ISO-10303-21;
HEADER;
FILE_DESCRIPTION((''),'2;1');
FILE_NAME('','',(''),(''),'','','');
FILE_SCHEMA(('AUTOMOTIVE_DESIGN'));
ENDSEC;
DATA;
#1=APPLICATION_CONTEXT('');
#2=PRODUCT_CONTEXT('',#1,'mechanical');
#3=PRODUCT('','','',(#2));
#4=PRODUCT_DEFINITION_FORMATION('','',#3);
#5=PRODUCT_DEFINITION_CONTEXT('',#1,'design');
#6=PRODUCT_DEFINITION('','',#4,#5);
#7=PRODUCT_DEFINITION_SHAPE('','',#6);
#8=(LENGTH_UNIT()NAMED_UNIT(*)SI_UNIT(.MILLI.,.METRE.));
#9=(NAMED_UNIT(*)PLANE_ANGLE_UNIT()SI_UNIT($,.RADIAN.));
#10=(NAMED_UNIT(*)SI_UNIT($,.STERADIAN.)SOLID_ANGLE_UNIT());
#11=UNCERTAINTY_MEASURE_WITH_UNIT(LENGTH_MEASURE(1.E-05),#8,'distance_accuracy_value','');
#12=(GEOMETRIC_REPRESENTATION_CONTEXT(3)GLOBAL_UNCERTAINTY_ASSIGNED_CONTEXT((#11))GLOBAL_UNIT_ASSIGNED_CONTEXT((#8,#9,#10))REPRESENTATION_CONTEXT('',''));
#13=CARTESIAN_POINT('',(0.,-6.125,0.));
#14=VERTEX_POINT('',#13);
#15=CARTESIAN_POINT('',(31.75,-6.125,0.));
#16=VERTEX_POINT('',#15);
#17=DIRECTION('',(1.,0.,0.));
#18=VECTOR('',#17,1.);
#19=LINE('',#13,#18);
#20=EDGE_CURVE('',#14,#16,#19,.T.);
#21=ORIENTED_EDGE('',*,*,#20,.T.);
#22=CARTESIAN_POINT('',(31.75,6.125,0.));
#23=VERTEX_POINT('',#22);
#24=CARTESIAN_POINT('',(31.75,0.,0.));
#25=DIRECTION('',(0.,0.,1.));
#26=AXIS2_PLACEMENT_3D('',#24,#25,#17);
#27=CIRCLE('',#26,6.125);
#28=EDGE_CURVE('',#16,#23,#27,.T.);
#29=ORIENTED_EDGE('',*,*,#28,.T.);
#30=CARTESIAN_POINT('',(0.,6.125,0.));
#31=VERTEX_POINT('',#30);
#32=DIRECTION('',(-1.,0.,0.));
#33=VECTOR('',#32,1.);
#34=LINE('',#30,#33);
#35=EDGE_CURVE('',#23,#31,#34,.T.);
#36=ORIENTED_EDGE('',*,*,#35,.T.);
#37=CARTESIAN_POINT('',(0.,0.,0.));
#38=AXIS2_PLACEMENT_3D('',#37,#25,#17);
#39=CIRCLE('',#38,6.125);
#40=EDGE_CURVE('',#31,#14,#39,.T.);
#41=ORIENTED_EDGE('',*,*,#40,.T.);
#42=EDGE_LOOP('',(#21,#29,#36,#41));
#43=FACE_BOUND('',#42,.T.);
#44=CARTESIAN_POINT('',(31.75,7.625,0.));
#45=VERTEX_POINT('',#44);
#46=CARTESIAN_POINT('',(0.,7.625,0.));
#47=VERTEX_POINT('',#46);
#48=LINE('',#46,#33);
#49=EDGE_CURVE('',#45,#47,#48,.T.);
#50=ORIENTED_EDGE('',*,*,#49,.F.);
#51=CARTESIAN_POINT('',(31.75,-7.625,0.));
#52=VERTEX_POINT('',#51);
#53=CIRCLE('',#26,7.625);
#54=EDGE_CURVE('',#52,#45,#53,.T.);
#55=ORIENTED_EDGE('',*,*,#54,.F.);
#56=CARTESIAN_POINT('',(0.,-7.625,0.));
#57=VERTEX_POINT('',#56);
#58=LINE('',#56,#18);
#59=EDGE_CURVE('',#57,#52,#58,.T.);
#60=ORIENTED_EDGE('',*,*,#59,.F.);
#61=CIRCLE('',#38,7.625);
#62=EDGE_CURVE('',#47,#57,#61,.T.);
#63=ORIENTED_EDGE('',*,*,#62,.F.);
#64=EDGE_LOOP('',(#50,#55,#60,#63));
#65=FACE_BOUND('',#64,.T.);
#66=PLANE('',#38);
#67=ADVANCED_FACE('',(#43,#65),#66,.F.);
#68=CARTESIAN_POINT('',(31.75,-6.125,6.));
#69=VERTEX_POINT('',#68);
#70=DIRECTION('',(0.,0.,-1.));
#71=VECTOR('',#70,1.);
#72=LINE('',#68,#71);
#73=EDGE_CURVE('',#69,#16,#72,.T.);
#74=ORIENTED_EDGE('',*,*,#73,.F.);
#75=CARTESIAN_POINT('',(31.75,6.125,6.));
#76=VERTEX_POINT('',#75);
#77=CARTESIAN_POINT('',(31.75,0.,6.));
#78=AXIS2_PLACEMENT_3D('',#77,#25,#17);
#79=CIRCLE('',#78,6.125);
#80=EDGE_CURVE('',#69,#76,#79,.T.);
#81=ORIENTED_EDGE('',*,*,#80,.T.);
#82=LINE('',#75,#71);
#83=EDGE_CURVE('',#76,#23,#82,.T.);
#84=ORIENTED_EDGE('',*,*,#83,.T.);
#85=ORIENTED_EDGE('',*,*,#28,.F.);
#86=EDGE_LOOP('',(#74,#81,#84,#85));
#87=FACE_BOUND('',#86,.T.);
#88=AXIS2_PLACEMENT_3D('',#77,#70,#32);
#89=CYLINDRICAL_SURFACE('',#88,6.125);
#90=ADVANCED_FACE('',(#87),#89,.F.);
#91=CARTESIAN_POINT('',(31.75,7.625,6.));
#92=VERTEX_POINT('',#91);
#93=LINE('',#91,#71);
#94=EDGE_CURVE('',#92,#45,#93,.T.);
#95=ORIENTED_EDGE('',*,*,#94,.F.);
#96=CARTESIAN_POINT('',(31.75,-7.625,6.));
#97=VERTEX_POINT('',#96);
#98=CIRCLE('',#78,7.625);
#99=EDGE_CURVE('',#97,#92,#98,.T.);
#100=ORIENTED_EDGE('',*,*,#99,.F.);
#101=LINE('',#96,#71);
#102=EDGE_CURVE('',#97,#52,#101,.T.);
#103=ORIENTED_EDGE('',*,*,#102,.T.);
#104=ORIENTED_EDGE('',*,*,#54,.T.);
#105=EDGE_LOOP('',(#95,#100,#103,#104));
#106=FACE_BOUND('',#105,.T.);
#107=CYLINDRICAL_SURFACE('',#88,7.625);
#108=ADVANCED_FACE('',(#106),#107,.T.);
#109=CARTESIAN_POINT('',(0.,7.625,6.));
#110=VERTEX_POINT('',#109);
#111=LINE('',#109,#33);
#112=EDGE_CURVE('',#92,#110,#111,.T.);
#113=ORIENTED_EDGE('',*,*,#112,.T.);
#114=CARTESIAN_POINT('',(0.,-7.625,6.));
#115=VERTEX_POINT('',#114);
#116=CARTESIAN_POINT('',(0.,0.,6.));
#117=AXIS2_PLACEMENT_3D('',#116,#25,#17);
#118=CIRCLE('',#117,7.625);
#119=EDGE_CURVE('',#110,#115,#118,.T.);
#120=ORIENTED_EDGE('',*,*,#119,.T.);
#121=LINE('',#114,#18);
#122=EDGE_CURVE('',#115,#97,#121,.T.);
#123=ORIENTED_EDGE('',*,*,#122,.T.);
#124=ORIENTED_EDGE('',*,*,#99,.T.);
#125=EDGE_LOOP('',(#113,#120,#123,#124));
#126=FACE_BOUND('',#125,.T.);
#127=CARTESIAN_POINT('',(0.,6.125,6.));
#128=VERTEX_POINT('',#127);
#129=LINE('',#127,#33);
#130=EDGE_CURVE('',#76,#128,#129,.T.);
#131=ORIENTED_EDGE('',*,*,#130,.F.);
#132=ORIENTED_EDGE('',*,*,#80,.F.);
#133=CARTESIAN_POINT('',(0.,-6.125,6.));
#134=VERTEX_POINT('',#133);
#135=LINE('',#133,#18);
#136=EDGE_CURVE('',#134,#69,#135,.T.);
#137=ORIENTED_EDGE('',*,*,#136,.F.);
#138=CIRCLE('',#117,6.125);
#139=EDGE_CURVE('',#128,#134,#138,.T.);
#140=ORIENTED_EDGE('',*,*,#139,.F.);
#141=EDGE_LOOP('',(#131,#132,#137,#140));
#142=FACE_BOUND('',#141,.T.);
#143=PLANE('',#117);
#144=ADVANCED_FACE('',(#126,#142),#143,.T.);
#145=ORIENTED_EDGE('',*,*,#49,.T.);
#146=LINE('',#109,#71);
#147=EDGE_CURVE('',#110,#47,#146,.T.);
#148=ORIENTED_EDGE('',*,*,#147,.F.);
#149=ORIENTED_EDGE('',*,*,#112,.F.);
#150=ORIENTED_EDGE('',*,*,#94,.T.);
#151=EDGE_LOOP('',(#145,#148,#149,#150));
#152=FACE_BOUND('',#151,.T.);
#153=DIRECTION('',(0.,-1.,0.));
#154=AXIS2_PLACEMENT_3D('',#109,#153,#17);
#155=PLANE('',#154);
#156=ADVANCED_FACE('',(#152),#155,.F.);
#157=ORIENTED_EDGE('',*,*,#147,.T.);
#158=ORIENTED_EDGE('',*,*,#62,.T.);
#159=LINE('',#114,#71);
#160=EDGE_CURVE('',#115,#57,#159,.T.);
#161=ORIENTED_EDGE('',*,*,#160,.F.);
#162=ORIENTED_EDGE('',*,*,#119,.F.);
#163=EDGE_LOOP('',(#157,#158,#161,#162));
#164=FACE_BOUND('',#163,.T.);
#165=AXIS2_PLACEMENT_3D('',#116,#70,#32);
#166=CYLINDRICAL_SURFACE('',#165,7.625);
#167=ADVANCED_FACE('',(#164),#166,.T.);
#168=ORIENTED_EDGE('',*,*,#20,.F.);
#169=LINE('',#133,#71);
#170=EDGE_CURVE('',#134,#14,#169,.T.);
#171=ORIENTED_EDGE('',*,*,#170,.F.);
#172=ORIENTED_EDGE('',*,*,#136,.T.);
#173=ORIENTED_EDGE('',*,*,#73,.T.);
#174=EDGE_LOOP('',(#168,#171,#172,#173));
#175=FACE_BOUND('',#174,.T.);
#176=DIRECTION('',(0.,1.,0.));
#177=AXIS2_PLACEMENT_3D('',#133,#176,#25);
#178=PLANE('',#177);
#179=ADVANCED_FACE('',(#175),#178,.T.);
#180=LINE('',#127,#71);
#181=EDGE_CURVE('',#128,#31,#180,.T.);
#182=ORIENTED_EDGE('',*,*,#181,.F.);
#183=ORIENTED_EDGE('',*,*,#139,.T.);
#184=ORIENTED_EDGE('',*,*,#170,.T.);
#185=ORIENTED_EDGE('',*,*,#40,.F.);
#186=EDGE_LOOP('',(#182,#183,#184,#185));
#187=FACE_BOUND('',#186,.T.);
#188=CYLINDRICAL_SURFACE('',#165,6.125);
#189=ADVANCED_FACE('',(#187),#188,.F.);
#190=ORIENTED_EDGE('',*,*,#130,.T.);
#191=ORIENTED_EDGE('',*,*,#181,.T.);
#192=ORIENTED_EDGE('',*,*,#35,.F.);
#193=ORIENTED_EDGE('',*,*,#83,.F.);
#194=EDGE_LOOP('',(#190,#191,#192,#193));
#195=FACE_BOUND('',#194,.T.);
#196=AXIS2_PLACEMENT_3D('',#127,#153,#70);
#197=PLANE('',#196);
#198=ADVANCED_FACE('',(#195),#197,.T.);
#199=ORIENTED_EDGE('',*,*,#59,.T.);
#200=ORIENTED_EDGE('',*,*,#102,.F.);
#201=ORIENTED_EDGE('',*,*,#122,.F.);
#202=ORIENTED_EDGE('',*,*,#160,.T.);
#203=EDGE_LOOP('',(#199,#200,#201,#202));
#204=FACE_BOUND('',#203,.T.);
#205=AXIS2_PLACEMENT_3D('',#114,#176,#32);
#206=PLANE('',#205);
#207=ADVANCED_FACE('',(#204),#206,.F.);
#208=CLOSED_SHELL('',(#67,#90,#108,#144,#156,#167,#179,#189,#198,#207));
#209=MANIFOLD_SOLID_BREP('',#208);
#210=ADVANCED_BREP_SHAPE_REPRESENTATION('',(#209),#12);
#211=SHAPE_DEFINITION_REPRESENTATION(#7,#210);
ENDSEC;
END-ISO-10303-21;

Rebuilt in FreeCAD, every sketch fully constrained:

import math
import FreeCAD as App
import Part
import Sketcher
from FreeCAD import Vector
Q = App.Units.Quantity

doc = App.newDocument("Part")
params = doc.addObject("Spreadsheet::Sheet", "Params")
for row, (alias, value) in enumerate([
    ("sketch1_width", "31.75 mm"),
    ("pad1_length", "6 mm"),
], start=1):
    params.set(f"A{row}", alias)
    params.set(f"B{row}", "=" + value)
    params.setAlias(f"B{row}", alias)

body = doc.addObject("PartDesign::Body", "Body")

# Sketch on XY plane
sketch1 = body.newObject("Sketcher::SketchObject", "Sketch")
sketch1.AttachmentSupport = (doc.getObject("XY_Plane"), [""])
sketch1.MapMode = "FlatFace"
sketch1.addGeometry([
    Part.LineSegment(Vector(32, 8, 0), Vector(0, 8, 0)),  # 0
    Part.ArcOfCircle(Part.Circle(Vector(0, 0, 0), Vector(0, 0, 1), 8), math.radians(90), math.radians(270)),  # 1
    Part.LineSegment(Vector(0, -8, 0), Vector(32, -8, 0)),  # 2
    Part.ArcOfCircle(Part.Circle(Vector(32, 0, 0), Vector(0, 0, 1), 8), math.radians(-90), math.radians(90)),  # 3
    Part.LineSegment(Vector(0, 6, 0), Vector(32, 6, 0)),  # 4
    Part.ArcOfCircle(Part.Circle(Vector(32, 0, 0), Vector(0, 0, 1), 6), math.radians(-90), math.radians(90)),  # 5
    Part.LineSegment(Vector(32, -6, 0), Vector(0, -6, 0)),  # 6
    Part.ArcOfCircle(Part.Circle(Vector(0, 0, 0), Vector(0, 0, 1), 6), math.radians(90), math.radians(270)),  # 7
], False)
sketch1.addConstraint([
    Sketcher.Constraint("Tangent", 0, 2, 1, 1),
    Sketcher.Constraint("Tangent", 1, 2, 2, 1),
    Sketcher.Constraint("Tangent", 2, 2, 3, 1),
    Sketcher.Constraint("Tangent", 3, 2, 0, 1),
    Sketcher.Constraint("Tangent", 4, 2, 5, 2),
    Sketcher.Constraint("Tangent", 5, 1, 6, 1),
    Sketcher.Constraint("Tangent", 6, 2, 7, 2),
    Sketcher.Constraint("Tangent", 7, 1, 4, 1),
    Sketcher.Constraint("Horizontal", 0),
    Sketcher.Constraint("Horizontal", 2),
    Sketcher.Constraint("Horizontal", 4),
    Sketcher.Constraint("Horizontal", 6),
    Sketcher.Constraint("Coincident", 1, 3, -1, 1),
    Sketcher.Constraint("Coincident", 7, 3, -1, 1),
    Sketcher.Constraint("Vertical", 5, 3, 2, 2),
    Sketcher.Constraint("Radius", 1, Q("7.625 mm")),
    Sketcher.Constraint("Radius", 5, Q("6.125 mm")),
    Sketcher.Constraint("DistanceX", 0, 2, 0, 1, Q("31.75 mm")),
])
sketch1.setExpression("Constraints[17]", "Params.sketch1_width")
pad1 = body.newObject("PartDesign::Pad", "Pad")
pad1.Profile = sketch1
pad1.setExpression("Length", "Params.pad1_length")

doc.recompute()
